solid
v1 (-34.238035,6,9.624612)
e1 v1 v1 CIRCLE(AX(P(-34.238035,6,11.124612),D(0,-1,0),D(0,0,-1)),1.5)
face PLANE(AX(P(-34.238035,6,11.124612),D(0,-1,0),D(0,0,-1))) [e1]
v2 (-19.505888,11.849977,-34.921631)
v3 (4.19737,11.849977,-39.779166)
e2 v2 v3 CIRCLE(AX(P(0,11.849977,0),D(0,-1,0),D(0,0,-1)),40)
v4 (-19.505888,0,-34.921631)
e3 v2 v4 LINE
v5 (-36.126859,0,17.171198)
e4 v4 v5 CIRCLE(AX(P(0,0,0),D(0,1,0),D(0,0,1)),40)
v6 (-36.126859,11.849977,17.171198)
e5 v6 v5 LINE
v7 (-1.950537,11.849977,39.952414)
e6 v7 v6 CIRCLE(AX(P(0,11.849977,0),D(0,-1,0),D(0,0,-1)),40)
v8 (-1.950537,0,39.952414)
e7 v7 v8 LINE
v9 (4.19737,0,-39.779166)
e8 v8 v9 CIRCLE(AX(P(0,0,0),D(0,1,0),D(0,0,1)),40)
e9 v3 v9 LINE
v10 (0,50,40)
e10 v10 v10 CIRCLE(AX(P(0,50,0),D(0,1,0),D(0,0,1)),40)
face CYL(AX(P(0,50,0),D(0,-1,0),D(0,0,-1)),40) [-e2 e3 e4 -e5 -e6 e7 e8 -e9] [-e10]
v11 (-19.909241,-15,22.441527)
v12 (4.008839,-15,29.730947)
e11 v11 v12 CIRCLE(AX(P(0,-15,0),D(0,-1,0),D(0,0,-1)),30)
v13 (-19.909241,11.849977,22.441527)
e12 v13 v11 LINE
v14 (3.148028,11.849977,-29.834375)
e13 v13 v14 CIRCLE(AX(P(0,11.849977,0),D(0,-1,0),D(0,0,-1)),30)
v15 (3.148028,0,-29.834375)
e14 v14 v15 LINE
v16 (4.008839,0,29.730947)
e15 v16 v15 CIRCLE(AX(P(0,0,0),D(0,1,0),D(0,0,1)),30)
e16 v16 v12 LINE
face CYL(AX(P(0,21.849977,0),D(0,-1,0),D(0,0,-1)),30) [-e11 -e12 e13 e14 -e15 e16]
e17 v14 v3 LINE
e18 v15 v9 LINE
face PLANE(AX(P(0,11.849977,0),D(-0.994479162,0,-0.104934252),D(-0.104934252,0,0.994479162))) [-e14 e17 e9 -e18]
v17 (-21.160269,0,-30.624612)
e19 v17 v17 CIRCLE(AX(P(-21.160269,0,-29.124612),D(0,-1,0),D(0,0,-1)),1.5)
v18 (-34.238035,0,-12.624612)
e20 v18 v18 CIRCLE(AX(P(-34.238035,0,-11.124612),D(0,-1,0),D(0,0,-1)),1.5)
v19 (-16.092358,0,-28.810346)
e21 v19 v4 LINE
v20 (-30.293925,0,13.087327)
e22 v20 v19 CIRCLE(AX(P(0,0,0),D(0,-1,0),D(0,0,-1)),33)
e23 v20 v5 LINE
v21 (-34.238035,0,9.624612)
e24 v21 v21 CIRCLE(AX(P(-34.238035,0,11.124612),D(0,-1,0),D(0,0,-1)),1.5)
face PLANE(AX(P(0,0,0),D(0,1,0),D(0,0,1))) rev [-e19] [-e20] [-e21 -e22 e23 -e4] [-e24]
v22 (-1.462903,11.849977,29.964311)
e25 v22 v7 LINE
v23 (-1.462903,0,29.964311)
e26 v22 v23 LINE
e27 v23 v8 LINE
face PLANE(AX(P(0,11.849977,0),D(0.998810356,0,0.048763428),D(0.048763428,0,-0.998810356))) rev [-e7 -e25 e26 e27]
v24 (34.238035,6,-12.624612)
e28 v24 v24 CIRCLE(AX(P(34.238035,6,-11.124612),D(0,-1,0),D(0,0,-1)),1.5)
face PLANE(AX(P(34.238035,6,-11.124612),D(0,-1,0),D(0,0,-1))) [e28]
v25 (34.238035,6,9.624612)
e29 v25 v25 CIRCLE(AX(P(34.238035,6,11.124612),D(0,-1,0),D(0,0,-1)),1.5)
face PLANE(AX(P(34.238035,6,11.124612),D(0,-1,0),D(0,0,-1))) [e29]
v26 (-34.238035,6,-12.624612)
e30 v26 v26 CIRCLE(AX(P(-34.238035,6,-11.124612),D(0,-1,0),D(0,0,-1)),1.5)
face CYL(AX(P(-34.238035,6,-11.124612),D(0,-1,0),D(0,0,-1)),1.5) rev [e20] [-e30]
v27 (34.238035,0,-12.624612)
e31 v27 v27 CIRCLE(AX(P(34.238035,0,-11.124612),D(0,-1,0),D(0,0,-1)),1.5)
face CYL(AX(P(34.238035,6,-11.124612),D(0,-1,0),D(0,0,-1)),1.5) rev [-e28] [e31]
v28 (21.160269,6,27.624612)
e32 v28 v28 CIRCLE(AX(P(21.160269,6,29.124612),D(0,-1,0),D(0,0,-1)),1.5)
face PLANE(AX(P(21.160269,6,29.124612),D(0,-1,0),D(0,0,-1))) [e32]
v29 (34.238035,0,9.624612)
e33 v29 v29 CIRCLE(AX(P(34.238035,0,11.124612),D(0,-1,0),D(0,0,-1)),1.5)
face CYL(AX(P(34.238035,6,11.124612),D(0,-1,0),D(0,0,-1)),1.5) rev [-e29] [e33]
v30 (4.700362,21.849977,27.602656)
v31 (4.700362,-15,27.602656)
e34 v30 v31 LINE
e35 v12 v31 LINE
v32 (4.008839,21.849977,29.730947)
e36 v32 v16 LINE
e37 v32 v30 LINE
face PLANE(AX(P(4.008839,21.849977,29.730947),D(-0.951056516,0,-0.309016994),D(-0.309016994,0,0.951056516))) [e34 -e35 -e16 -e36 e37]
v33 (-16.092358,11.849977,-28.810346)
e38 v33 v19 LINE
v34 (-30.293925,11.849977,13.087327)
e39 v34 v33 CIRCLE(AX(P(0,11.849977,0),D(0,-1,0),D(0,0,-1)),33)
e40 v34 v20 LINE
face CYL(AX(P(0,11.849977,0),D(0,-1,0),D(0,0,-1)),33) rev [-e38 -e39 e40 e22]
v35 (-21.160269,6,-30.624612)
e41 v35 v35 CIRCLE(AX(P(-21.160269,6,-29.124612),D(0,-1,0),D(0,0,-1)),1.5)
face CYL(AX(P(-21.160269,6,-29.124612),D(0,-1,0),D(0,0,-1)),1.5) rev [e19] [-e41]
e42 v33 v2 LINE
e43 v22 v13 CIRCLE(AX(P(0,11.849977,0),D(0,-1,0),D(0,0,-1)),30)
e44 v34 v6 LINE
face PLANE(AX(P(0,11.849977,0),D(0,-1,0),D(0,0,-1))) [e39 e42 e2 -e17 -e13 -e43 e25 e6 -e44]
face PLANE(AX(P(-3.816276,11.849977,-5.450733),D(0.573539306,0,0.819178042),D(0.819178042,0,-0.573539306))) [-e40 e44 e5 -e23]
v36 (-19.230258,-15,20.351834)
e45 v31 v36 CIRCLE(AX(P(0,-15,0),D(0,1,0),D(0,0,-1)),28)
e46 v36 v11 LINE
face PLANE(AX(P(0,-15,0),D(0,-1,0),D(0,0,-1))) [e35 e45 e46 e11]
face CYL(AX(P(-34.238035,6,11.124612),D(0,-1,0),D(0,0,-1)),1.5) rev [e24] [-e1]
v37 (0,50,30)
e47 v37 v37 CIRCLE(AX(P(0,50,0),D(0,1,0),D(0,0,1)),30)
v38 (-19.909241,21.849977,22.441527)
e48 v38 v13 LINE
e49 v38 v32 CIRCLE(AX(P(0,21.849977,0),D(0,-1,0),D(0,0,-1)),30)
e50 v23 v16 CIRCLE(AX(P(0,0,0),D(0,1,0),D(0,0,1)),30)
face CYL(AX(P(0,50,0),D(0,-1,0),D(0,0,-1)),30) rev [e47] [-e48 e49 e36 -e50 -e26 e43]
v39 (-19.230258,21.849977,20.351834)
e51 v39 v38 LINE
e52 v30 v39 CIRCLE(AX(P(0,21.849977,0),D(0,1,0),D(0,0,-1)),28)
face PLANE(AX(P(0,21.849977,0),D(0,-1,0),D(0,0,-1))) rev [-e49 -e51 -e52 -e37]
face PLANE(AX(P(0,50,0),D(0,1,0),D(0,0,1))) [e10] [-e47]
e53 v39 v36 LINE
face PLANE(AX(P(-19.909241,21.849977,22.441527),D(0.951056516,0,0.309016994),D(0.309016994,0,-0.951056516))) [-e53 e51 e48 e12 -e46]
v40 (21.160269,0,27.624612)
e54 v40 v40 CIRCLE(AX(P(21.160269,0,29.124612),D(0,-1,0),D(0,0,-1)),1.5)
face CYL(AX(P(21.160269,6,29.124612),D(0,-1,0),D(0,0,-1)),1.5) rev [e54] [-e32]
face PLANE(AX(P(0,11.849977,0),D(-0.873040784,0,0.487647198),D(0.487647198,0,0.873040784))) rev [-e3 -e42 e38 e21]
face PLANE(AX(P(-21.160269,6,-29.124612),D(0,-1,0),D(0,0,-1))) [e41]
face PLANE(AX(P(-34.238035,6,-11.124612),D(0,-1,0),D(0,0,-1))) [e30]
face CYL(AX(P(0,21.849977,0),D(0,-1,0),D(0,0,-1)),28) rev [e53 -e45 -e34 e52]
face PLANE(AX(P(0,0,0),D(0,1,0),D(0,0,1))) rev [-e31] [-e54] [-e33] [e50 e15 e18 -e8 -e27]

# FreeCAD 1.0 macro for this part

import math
import FreeCAD as App
import Part
import Sketcher

V = App.Vector
Q = App.Units.Quantity

doc = App.newDocument("Part")
body = doc.addObject("PartDesign::Body", "Body")

# Sketch on XZ plane
sketch1 = doc.addObject("Sketcher::SketchObject", "Sketch")
body.addObject(sketch1)
sketch1.AttachmentSupport = (doc.XZ_Plane, [""])
sketch1.MapMode = "FlatFace"
sketch1.addGeometry(Part.Circle(V(0, 0, 0), V(0, 0, 1), 40), False)
sketch1.addGeometry(Part.Circle(V(0, 0, 0), V(0, 0, 1), 30), False)
sketch1.addConstraint(Sketcher.Constraint("Coincident", 0, 3, -1, 1))
sketch1.addConstraint(Sketcher.Constraint("Coincident", 1, 3, -1, 1))
sketch1.addConstraint(Sketcher.Constraint("Diameter", 0, 80.0))
sketch1.addConstraint(Sketcher.Constraint("Diameter", 1, 60.0))
pad1 = doc.addObject("PartDesign::Pad", "Pad")
body.addObject(pad1)
pad1.Profile = sketch1
pad1.Length = 50
pad1.Reversed = True

# Sketch on XZ plane
sketch2 = doc.addObject("Sketcher::SketchObject", "Sketch001")
body.addObject(sketch2)
sketch2.AttachmentSupport = (doc.XZ_Plane, [""])
sketch2.MapMode = "FlatFace"
sketch2.addGeometry(Part.Circle(V(21.160269, 29.124612, 0), V(0, 0, 1), 1.5), False)
sketch2.addGeometry(Part.Circle(V(34.238035, 11.124612, 0), V(0, 0, 1), 1.5), False)
sketch2.addGeometry(Part.Circle(V(34.238035, -11.124612, 0), V(0, 0, 1), 1.5), False)
sketch2.addGeometry(Part.Circle(V(-21.160269, -29.124612, 0), V(0, 0, 1), 1.5), False)
sketch2.addGeometry(Part.Circle(V(-34.238035, -11.124612, 0), V(0, 0, 1), 1.5), False)
sketch2.addGeometry(Part.Circle(V(-34.238035, 11.124612, 0), V(0, 0, 1), 1.5), False)
sketch2.addConstraint(Sketcher.Constraint("Equal", 0, 1))
sketch2.addConstraint(Sketcher.Constraint("Equal", 1, 2))
sketch2.addConstraint(Sketcher.Constraint("Equal", 2, 3))
sketch2.addConstraint(Sketcher.Constraint("Equal", 3, 4))
sketch2.addConstraint(Sketcher.Constraint("Equal", 4, 5))
sketch2.addConstraint(Sketcher.Constraint("Symmetric", 0, 3, 3, 3, -1, 1))
sketch2.addConstraint(Sketcher.Constraint("Symmetric", 1, 3, 4, 3, -1, 1))
sketch2.addConstraint(Sketcher.Constraint("Symmetric", 2, 3, 5, 3, -1, 1))
sketch2.addConstraint(Sketcher.Constraint("Symmetric", 2, 3, 4, 3, -2))
sketch2.addConstraint(Sketcher.Constraint("Diameter", 0, 3.0))
sketch2.addConstraint(Sketcher.Constraint("DistanceY", 1, 3, 0, 3, 18.0))
sketch2.addConstraint(Sketcher.Constraint("DistanceX", -1, 1, 0, 3, 21.160269))
sketch2.addConstraint(Sketcher.Constraint("DistanceY", -1, 1, 0, 3, 29.124612))
sketch2.addConstraint(Sketcher.Constraint("DistanceX", 4, 3, 2, 3, 68.476069))
pocket1 = doc.addObject("PartDesign::Pocket", "Pocket")
body.addObject(pocket1)
pocket1.Profile = sketch2
pocket1.Length = 6

# Sketch on XZ plane
sketch3 = doc.addObject("Sketcher::SketchObject", "Sketch002")
body.addObject(sketch3)
sketch3.AttachmentSupport = (doc.XZ_Plane, [""])
sketch3.MapMode = "FlatFace"
sketch3.addGeometry(Part.ArcOfCircle(Part.Circle(V(0, 0, 0), V(0, 0, 1), 33), math.radians(156.635095), math.radians(240.813944)), False)
sketch3.addGeometry(Part.LineSegment(V(-16.092358, -28.810346, 0), V(-19.505888, -34.921631, 0)), False)
sketch3.addGeometry(Part.ArcOfCircle(Part.Circle(V(0, 0, 0), V(0, 0, 1), 40), math.radians(-119.186056), math.radians(-83.976621)), False)
sketch3.addGeometry(Part.LineSegment(V(4.19737, -39.779166, 0), V(3.148028, -29.834375, 0)), False)
sketch3.addGeometry(Part.ArcOfCircle(Part.Circle(V(0, 0, 0), V(0, 0, 1), 30), math.radians(92.795047), math.radians(276.023379)), False)
sketch3.addGeometry(Part.LineSegment(V(-1.462903, 29.964311, 0), V(-1.950537, 39.952414, 0)), False)
sketch3.addGeometry(Part.ArcOfCircle(Part.Circle(V(0, 0, 0), V(0, 0, 1), 40), math.radians(92.795047), math.radians(154.578128)), False)
sketch3.addGeometry(Part.LineSegment(V(-36.126859, 17.171198, 0), V(-30.293925, 13.087327, 0)), False)
sketch3.addConstraint(Sketcher.Constraint("Coincident", 0, 2, 1, 1))
sketch3.addConstraint(Sketcher.Constraint("Coincident", 1, 2, 2, 1))
sketch3.addConstraint(Sketcher.Constraint("Coincident", 2, 2, 3, 1))
sketch3.addConstraint(Sketcher.Constraint("Coincident", 3, 2, 4, 2))
sketch3.addConstraint(Sketcher.Constraint("Coincident", 4, 1, 5, 1))
sketch3.addConstraint(Sketcher.Constraint("Coincident", 5, 2, 6, 1))
sketch3.addConstraint(Sketcher.Constraint("Coincident", 6, 2, 7, 1))
sketch3.addConstraint(Sketcher.Constraint("Coincident", 7, 2, 0, 1))
sketch3.addConstraint(Sketcher.Constraint("Coincident", 0, 3, -1, 1))
sketch3.addConstraint(Sketcher.Constraint("Coincident", 2, 3, -1, 1))
sketch3.addConstraint(Sketcher.Constraint("Coincident", 4, 3, -1, 1))
sketch3.addConstraint(Sketcher.Constraint("Coincident", 6, 3, -1, 1))
sketch3.addConstraint(Sketcher.Constraint("Equal", 2, 6))
sketch3.addConstraint(Sketcher.Constraint("Radius", 0, 33.0))
sketch3.addConstraint(Sketcher.Constraint("Radius", 2, 40.0))
sketch3.addConstraint(Sketcher.Constraint("Radius", 4, 30.0))
sketch3.addConstraint(Sketcher.Constraint("DistanceY", 1, 2, -1, 1, 34.921631))
sketch3.addConstraint(Sketcher.Constraint("DistanceX", -1, 1, 2, 2, 4.19737))
sketch3.addConstraint(Sketcher.Constraint("DistanceY", -1, 1, 4, 1, 29.964311))
sketch3.addConstraint(Sketcher.Constraint("DistanceX", 6, 2, -1, 1, 36.126859))
sketch3.addConstraint(Sketcher.Constraint("DistanceX", 1, 2, 0, 2, 3.41353))
sketch3.addConstraint(Sketcher.Constraint("DistanceY", 2, 2, 3, 2, 9.944792))
sketch3.addConstraint(Sketcher.Constraint("DistanceY", 7, 2, 6, 2, 4.083871))
sketch3.addConstraint(Sketcher.Constraint("DistanceX", 5, 2, -1, 1, 1.950537))
pocket2 = doc.addObject("PartDesign::Pocket", "Pocket001")
body.addObject(pocket2)
pocket2.Profile = sketch3
pocket2.Length = 11.849977

# Sketch on XZ plane
sketch4 = doc.addObject("Sketcher::SketchObject", "Sketch003")
body.addObject(sketch4)
sketch4.AttachmentSupport = (doc.XZ_Plane, [""])
sketch4.MapMode = "FlatFace"
sketch4.AttachmentOffset = App.Placement(V(0, 0, -11.849977), App.Rotation())
sketch4.addGeometry(Part.LineSegment(V(4.008839, 29.730947, 0), V(4.700362, 27.602656, 0)), False)
sketch4.addGeometry(Part.ArcOfCircle(Part.Circle(V(0, 0, 0), V(0, 0, 1), 28), math.radians(133.376934), math.radians(440.335996)), False)
sketch4.addGeometry(Part.LineSegment(V(-19.230258, 20.351834, 0), V(-19.909241, 22.441527, 0)), False)
sketch4.addGeometry(Part.ArcOfCircle(Part.Circle(V(0, 0, 0), V(0, 0, 1), 30), math.radians(131.578178), math.radians(442.320711)), False)
sketch4.addConstraint(Sketcher.Constraint("Coincident", 0, 2, 1, 2))
sketch4.addConstraint(Sketcher.Constraint("Coincident", 1, 1, 2, 1))
sketch4.addConstraint(Sketcher.Constraint("Coincident", 2, 2, 3, 1))
sketch4.addConstraint(Sketcher.Constraint("Coincident", 3, 2, 0, 1))
sketch4.addConstraint(Sketcher.Constraint("Coincident", 1, 3, -1, 1))
sketch4.addConstraint(Sketcher.Constraint("Coincident", 3, 3, -1, 1))
sketch4.addConstraint(Sketcher.Constraint("Parallel", 0, 2))
sketch4.addConstraint(Sketcher.Constraint("Radius", 1, 28.0))
sketch4.addConstraint(Sketcher.Constraint("Radius", 3, 30.0))
sketch4.addConstraint(Sketcher.Constraint("Angle", 0, Q("-72 deg")))
sketch4.addConstraint(Sketcher.Constraint("Distance", 0, 2.237818))
sketch4.addConstraint(Sketcher.Constraint("DistanceX", 1, 1, -1, 1, 19.230258))
pad2 = doc.addObject("PartDesign::Pad", "Pad001")
body.addObject(pad2)
pad2.Profile = sketch4
pad2.Type = "TwoLengths"
pad2.Length = 26.849977
pad2.Length2 = 10

doc.recompute()
